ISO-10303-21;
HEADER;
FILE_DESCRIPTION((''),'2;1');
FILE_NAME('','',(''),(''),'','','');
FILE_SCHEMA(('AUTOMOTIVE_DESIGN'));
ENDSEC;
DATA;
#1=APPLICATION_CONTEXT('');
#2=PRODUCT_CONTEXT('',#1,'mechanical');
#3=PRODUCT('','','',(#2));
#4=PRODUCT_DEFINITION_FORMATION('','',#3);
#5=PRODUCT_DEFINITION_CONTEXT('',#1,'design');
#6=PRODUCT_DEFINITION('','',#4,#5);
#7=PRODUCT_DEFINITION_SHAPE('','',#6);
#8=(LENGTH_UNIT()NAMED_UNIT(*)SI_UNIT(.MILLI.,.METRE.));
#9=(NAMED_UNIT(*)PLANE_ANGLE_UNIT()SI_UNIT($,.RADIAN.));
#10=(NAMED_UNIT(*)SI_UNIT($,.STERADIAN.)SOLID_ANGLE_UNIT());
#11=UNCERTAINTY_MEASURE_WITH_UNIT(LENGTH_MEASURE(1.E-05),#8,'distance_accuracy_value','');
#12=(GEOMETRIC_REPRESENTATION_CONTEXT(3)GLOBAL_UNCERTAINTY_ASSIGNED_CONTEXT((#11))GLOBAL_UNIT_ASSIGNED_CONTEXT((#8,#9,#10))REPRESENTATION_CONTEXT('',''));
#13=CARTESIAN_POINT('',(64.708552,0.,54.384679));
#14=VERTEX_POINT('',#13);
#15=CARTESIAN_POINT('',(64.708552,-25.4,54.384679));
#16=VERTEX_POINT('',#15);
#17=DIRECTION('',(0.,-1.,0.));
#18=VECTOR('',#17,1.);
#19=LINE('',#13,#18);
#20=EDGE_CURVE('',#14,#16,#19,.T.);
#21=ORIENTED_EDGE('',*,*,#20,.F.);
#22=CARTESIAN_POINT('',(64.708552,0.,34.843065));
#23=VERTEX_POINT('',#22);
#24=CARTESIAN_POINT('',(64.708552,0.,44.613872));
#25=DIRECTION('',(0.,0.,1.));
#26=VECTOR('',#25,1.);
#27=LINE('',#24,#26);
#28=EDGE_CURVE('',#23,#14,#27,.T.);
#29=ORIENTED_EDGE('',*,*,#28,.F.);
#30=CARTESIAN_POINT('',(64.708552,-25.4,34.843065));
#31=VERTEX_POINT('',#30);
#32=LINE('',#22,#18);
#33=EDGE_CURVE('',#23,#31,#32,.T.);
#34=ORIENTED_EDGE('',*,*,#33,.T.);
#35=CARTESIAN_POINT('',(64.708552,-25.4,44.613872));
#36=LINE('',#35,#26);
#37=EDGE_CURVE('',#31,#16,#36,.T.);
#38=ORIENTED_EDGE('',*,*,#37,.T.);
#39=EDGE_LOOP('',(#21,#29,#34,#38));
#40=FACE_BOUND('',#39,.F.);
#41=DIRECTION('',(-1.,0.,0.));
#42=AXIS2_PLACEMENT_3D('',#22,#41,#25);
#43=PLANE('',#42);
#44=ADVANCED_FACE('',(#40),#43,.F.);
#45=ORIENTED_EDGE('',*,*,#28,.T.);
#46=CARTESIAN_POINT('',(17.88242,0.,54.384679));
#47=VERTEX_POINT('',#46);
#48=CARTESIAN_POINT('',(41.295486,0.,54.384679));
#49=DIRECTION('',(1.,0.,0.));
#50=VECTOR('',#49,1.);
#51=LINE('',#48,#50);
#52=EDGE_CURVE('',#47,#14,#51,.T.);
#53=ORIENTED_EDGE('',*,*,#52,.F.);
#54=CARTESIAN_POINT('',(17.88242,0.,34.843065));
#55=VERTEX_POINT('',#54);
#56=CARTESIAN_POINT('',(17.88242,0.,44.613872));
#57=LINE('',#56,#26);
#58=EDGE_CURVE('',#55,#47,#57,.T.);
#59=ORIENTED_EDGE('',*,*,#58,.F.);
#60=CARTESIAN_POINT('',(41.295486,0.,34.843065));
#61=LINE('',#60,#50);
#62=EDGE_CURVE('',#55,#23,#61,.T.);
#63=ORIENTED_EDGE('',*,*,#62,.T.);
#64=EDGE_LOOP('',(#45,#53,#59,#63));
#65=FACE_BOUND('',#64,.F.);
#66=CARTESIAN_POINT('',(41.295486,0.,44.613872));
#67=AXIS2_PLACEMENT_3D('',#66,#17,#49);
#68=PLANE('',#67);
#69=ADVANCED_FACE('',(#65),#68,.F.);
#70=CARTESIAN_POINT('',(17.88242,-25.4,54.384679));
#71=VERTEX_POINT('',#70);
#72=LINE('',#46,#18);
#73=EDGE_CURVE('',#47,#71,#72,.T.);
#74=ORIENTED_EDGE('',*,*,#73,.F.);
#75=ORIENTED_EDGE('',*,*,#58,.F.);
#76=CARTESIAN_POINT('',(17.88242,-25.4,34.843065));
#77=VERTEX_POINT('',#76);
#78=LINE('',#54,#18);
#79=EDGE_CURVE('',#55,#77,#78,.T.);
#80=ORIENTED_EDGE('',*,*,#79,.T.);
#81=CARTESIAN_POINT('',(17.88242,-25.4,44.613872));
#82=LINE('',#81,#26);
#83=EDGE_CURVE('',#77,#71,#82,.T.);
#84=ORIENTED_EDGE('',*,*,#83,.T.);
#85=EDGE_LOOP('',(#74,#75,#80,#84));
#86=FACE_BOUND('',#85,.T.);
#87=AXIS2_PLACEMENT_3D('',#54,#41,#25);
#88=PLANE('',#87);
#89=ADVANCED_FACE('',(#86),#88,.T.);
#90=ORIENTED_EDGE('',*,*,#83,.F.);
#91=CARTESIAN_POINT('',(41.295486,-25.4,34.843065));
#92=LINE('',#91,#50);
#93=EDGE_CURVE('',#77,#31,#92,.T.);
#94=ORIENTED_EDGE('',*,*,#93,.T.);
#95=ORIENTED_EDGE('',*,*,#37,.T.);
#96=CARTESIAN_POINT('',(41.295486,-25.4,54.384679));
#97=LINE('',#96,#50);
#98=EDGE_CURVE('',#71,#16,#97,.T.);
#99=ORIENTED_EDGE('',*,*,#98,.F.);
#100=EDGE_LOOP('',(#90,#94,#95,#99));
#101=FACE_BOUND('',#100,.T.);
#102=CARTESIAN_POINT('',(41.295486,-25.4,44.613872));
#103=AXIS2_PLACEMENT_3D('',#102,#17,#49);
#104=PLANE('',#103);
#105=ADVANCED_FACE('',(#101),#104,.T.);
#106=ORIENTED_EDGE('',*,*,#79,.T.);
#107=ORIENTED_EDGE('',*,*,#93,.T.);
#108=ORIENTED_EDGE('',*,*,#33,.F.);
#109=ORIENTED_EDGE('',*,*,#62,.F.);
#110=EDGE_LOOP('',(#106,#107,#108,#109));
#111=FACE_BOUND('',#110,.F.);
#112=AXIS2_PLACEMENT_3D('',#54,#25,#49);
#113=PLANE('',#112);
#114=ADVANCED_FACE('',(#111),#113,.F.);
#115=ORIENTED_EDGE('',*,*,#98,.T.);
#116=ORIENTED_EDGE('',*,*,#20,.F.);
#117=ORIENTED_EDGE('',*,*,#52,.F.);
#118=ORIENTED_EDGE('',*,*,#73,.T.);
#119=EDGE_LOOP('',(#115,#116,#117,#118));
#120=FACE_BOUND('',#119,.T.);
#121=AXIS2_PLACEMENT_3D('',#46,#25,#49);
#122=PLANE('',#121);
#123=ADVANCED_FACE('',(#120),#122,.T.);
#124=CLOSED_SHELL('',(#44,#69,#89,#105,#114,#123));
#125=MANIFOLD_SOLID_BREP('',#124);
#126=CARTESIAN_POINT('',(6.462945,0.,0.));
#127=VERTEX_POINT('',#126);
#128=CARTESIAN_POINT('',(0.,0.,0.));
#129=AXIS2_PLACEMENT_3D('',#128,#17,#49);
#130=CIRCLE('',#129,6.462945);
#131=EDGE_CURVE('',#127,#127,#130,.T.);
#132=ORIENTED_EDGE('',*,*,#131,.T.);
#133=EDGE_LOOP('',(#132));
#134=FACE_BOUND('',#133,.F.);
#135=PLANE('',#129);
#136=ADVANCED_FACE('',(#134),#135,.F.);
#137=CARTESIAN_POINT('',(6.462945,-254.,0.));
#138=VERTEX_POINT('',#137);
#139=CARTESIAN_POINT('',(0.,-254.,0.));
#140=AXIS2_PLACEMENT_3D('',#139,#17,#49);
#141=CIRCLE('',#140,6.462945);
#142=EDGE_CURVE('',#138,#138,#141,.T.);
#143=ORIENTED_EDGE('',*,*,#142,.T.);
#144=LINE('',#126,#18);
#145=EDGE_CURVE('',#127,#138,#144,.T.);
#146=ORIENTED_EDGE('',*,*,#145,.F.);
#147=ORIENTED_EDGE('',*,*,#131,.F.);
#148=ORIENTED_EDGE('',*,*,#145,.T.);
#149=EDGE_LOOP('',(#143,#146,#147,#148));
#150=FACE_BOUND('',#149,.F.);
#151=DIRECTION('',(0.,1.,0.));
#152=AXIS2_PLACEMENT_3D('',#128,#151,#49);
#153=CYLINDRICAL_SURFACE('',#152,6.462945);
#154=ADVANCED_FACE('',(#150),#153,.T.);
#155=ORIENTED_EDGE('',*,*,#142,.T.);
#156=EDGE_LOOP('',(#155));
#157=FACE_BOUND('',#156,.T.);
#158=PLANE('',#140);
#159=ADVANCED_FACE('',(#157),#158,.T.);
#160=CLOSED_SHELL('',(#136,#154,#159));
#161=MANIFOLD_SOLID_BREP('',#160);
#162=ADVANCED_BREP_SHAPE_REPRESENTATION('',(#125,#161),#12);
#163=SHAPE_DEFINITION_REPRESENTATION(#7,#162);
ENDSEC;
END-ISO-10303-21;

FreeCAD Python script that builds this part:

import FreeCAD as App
import Part
import Sketcher
Q = App.Units.Quantity

doc = App.newDocument("Part")
params = doc.addObject("Spreadsheet::Sheet", "Params")
for row, (alias, value) in enumerate([
    ("pad1_length", "10 in"),
    ("pad2_length", "1 in"),
], start=1):
    params.set(f"A{row}", alias)
    params.set(f"B{row}", "=" + value)
    params.setAlias(f"B{row}", alias)

body = doc.addObject("PartDesign::Body", "Body")

# Sketch on XZ plane
sketch1 = body.newObject("Sketcher::SketchObject", "Sketch")
sketch1.AttachmentSupport = (doc.getObject("XZ_Plane"), [""])
sketch1.MapMode = "FlatFace"
sketch1.addGeometry(Part.Circle(App.Vector(0, 0, 0), App.Vector(0, 0, 1), 6), False)
sketch1.addConstraint(Sketcher.Constraint("Coincident", 0, 3, -1, 1))
sketch1.addConstraint(Sketcher.Constraint("Diameter", 0, Q("12.92589 mm")))
pad1 = body.newObject("PartDesign::Pad", "Pad")
pad1.Profile = sketch1
pad1.setExpression("Length", "Params.pad1_length")
body2 = doc.addObject("PartDesign::Body", "Body001")

# Sketch on XZ plane
sketch2 = body2.newObject("Sketcher::SketchObject", "Sketch001")
sketch2.AttachmentSupport = (doc.getObject("XZ_Plane001"), [""])
sketch2.MapMode = "FlatFace"
sketch2.addGeometry(Part.LineSegment(App.Vector(18, 54, 0), App.Vector(18, 35, 0)), False)
sketch2.addGeometry(Part.LineSegment(App.Vector(18, 35, 0), App.Vector(65, 35, 0)), False)
sketch2.addGeometry(Part.LineSegment(App.Vector(65, 35, 0), App.Vector(65, 54, 0)), False)
sketch2.addGeometry(Part.LineSegment(App.Vector(65, 54, 0), App.Vector(18, 54, 0)), False)
sketch2.addConstraint(Sketcher.Constraint("Coincident", 0, 2, 1, 1))
sketch2.addConstraint(Sketcher.Constraint("Coincident", 1, 2, 2, 1))
sketch2.addConstraint(Sketcher.Constraint("Coincident", 2, 2, 3, 1))
sketch2.addConstraint(Sketcher.Constraint("Coincident", 3, 2, 0, 1))
sketch2.addConstraint(Sketcher.Constraint("Vertical", 0))
sketch2.addConstraint(Sketcher.Constraint("Horizontal", 1))
sketch2.addConstraint(Sketcher.Constraint("Vertical", 2))
sketch2.addConstraint(Sketcher.Constraint("Horizontal", 3))
sketch2.addConstraint(Sketcher.Constraint("DistanceX", 1, 1, 1, 2, Q("46.826133 mm")))
sketch2.addConstraint(Sketcher.Constraint("DistanceY", 0, 2, 0, 1, Q("19.541614 mm")))
sketch2.addConstraint(Sketcher.Constraint("DistanceX", -1, 1, 0, 2, Q("17.88242 mm")))
sketch2.addConstraint(Sketcher.Constraint("DistanceY", -1, 1, 2, 2, Q("54.384679 mm")))
pad2 = body2.newObject("PartDesign::Pad", "Pad001")
pad2.Profile = sketch2
pad2.setExpression("Length", "Params.pad2_length")

doc.recompute()
